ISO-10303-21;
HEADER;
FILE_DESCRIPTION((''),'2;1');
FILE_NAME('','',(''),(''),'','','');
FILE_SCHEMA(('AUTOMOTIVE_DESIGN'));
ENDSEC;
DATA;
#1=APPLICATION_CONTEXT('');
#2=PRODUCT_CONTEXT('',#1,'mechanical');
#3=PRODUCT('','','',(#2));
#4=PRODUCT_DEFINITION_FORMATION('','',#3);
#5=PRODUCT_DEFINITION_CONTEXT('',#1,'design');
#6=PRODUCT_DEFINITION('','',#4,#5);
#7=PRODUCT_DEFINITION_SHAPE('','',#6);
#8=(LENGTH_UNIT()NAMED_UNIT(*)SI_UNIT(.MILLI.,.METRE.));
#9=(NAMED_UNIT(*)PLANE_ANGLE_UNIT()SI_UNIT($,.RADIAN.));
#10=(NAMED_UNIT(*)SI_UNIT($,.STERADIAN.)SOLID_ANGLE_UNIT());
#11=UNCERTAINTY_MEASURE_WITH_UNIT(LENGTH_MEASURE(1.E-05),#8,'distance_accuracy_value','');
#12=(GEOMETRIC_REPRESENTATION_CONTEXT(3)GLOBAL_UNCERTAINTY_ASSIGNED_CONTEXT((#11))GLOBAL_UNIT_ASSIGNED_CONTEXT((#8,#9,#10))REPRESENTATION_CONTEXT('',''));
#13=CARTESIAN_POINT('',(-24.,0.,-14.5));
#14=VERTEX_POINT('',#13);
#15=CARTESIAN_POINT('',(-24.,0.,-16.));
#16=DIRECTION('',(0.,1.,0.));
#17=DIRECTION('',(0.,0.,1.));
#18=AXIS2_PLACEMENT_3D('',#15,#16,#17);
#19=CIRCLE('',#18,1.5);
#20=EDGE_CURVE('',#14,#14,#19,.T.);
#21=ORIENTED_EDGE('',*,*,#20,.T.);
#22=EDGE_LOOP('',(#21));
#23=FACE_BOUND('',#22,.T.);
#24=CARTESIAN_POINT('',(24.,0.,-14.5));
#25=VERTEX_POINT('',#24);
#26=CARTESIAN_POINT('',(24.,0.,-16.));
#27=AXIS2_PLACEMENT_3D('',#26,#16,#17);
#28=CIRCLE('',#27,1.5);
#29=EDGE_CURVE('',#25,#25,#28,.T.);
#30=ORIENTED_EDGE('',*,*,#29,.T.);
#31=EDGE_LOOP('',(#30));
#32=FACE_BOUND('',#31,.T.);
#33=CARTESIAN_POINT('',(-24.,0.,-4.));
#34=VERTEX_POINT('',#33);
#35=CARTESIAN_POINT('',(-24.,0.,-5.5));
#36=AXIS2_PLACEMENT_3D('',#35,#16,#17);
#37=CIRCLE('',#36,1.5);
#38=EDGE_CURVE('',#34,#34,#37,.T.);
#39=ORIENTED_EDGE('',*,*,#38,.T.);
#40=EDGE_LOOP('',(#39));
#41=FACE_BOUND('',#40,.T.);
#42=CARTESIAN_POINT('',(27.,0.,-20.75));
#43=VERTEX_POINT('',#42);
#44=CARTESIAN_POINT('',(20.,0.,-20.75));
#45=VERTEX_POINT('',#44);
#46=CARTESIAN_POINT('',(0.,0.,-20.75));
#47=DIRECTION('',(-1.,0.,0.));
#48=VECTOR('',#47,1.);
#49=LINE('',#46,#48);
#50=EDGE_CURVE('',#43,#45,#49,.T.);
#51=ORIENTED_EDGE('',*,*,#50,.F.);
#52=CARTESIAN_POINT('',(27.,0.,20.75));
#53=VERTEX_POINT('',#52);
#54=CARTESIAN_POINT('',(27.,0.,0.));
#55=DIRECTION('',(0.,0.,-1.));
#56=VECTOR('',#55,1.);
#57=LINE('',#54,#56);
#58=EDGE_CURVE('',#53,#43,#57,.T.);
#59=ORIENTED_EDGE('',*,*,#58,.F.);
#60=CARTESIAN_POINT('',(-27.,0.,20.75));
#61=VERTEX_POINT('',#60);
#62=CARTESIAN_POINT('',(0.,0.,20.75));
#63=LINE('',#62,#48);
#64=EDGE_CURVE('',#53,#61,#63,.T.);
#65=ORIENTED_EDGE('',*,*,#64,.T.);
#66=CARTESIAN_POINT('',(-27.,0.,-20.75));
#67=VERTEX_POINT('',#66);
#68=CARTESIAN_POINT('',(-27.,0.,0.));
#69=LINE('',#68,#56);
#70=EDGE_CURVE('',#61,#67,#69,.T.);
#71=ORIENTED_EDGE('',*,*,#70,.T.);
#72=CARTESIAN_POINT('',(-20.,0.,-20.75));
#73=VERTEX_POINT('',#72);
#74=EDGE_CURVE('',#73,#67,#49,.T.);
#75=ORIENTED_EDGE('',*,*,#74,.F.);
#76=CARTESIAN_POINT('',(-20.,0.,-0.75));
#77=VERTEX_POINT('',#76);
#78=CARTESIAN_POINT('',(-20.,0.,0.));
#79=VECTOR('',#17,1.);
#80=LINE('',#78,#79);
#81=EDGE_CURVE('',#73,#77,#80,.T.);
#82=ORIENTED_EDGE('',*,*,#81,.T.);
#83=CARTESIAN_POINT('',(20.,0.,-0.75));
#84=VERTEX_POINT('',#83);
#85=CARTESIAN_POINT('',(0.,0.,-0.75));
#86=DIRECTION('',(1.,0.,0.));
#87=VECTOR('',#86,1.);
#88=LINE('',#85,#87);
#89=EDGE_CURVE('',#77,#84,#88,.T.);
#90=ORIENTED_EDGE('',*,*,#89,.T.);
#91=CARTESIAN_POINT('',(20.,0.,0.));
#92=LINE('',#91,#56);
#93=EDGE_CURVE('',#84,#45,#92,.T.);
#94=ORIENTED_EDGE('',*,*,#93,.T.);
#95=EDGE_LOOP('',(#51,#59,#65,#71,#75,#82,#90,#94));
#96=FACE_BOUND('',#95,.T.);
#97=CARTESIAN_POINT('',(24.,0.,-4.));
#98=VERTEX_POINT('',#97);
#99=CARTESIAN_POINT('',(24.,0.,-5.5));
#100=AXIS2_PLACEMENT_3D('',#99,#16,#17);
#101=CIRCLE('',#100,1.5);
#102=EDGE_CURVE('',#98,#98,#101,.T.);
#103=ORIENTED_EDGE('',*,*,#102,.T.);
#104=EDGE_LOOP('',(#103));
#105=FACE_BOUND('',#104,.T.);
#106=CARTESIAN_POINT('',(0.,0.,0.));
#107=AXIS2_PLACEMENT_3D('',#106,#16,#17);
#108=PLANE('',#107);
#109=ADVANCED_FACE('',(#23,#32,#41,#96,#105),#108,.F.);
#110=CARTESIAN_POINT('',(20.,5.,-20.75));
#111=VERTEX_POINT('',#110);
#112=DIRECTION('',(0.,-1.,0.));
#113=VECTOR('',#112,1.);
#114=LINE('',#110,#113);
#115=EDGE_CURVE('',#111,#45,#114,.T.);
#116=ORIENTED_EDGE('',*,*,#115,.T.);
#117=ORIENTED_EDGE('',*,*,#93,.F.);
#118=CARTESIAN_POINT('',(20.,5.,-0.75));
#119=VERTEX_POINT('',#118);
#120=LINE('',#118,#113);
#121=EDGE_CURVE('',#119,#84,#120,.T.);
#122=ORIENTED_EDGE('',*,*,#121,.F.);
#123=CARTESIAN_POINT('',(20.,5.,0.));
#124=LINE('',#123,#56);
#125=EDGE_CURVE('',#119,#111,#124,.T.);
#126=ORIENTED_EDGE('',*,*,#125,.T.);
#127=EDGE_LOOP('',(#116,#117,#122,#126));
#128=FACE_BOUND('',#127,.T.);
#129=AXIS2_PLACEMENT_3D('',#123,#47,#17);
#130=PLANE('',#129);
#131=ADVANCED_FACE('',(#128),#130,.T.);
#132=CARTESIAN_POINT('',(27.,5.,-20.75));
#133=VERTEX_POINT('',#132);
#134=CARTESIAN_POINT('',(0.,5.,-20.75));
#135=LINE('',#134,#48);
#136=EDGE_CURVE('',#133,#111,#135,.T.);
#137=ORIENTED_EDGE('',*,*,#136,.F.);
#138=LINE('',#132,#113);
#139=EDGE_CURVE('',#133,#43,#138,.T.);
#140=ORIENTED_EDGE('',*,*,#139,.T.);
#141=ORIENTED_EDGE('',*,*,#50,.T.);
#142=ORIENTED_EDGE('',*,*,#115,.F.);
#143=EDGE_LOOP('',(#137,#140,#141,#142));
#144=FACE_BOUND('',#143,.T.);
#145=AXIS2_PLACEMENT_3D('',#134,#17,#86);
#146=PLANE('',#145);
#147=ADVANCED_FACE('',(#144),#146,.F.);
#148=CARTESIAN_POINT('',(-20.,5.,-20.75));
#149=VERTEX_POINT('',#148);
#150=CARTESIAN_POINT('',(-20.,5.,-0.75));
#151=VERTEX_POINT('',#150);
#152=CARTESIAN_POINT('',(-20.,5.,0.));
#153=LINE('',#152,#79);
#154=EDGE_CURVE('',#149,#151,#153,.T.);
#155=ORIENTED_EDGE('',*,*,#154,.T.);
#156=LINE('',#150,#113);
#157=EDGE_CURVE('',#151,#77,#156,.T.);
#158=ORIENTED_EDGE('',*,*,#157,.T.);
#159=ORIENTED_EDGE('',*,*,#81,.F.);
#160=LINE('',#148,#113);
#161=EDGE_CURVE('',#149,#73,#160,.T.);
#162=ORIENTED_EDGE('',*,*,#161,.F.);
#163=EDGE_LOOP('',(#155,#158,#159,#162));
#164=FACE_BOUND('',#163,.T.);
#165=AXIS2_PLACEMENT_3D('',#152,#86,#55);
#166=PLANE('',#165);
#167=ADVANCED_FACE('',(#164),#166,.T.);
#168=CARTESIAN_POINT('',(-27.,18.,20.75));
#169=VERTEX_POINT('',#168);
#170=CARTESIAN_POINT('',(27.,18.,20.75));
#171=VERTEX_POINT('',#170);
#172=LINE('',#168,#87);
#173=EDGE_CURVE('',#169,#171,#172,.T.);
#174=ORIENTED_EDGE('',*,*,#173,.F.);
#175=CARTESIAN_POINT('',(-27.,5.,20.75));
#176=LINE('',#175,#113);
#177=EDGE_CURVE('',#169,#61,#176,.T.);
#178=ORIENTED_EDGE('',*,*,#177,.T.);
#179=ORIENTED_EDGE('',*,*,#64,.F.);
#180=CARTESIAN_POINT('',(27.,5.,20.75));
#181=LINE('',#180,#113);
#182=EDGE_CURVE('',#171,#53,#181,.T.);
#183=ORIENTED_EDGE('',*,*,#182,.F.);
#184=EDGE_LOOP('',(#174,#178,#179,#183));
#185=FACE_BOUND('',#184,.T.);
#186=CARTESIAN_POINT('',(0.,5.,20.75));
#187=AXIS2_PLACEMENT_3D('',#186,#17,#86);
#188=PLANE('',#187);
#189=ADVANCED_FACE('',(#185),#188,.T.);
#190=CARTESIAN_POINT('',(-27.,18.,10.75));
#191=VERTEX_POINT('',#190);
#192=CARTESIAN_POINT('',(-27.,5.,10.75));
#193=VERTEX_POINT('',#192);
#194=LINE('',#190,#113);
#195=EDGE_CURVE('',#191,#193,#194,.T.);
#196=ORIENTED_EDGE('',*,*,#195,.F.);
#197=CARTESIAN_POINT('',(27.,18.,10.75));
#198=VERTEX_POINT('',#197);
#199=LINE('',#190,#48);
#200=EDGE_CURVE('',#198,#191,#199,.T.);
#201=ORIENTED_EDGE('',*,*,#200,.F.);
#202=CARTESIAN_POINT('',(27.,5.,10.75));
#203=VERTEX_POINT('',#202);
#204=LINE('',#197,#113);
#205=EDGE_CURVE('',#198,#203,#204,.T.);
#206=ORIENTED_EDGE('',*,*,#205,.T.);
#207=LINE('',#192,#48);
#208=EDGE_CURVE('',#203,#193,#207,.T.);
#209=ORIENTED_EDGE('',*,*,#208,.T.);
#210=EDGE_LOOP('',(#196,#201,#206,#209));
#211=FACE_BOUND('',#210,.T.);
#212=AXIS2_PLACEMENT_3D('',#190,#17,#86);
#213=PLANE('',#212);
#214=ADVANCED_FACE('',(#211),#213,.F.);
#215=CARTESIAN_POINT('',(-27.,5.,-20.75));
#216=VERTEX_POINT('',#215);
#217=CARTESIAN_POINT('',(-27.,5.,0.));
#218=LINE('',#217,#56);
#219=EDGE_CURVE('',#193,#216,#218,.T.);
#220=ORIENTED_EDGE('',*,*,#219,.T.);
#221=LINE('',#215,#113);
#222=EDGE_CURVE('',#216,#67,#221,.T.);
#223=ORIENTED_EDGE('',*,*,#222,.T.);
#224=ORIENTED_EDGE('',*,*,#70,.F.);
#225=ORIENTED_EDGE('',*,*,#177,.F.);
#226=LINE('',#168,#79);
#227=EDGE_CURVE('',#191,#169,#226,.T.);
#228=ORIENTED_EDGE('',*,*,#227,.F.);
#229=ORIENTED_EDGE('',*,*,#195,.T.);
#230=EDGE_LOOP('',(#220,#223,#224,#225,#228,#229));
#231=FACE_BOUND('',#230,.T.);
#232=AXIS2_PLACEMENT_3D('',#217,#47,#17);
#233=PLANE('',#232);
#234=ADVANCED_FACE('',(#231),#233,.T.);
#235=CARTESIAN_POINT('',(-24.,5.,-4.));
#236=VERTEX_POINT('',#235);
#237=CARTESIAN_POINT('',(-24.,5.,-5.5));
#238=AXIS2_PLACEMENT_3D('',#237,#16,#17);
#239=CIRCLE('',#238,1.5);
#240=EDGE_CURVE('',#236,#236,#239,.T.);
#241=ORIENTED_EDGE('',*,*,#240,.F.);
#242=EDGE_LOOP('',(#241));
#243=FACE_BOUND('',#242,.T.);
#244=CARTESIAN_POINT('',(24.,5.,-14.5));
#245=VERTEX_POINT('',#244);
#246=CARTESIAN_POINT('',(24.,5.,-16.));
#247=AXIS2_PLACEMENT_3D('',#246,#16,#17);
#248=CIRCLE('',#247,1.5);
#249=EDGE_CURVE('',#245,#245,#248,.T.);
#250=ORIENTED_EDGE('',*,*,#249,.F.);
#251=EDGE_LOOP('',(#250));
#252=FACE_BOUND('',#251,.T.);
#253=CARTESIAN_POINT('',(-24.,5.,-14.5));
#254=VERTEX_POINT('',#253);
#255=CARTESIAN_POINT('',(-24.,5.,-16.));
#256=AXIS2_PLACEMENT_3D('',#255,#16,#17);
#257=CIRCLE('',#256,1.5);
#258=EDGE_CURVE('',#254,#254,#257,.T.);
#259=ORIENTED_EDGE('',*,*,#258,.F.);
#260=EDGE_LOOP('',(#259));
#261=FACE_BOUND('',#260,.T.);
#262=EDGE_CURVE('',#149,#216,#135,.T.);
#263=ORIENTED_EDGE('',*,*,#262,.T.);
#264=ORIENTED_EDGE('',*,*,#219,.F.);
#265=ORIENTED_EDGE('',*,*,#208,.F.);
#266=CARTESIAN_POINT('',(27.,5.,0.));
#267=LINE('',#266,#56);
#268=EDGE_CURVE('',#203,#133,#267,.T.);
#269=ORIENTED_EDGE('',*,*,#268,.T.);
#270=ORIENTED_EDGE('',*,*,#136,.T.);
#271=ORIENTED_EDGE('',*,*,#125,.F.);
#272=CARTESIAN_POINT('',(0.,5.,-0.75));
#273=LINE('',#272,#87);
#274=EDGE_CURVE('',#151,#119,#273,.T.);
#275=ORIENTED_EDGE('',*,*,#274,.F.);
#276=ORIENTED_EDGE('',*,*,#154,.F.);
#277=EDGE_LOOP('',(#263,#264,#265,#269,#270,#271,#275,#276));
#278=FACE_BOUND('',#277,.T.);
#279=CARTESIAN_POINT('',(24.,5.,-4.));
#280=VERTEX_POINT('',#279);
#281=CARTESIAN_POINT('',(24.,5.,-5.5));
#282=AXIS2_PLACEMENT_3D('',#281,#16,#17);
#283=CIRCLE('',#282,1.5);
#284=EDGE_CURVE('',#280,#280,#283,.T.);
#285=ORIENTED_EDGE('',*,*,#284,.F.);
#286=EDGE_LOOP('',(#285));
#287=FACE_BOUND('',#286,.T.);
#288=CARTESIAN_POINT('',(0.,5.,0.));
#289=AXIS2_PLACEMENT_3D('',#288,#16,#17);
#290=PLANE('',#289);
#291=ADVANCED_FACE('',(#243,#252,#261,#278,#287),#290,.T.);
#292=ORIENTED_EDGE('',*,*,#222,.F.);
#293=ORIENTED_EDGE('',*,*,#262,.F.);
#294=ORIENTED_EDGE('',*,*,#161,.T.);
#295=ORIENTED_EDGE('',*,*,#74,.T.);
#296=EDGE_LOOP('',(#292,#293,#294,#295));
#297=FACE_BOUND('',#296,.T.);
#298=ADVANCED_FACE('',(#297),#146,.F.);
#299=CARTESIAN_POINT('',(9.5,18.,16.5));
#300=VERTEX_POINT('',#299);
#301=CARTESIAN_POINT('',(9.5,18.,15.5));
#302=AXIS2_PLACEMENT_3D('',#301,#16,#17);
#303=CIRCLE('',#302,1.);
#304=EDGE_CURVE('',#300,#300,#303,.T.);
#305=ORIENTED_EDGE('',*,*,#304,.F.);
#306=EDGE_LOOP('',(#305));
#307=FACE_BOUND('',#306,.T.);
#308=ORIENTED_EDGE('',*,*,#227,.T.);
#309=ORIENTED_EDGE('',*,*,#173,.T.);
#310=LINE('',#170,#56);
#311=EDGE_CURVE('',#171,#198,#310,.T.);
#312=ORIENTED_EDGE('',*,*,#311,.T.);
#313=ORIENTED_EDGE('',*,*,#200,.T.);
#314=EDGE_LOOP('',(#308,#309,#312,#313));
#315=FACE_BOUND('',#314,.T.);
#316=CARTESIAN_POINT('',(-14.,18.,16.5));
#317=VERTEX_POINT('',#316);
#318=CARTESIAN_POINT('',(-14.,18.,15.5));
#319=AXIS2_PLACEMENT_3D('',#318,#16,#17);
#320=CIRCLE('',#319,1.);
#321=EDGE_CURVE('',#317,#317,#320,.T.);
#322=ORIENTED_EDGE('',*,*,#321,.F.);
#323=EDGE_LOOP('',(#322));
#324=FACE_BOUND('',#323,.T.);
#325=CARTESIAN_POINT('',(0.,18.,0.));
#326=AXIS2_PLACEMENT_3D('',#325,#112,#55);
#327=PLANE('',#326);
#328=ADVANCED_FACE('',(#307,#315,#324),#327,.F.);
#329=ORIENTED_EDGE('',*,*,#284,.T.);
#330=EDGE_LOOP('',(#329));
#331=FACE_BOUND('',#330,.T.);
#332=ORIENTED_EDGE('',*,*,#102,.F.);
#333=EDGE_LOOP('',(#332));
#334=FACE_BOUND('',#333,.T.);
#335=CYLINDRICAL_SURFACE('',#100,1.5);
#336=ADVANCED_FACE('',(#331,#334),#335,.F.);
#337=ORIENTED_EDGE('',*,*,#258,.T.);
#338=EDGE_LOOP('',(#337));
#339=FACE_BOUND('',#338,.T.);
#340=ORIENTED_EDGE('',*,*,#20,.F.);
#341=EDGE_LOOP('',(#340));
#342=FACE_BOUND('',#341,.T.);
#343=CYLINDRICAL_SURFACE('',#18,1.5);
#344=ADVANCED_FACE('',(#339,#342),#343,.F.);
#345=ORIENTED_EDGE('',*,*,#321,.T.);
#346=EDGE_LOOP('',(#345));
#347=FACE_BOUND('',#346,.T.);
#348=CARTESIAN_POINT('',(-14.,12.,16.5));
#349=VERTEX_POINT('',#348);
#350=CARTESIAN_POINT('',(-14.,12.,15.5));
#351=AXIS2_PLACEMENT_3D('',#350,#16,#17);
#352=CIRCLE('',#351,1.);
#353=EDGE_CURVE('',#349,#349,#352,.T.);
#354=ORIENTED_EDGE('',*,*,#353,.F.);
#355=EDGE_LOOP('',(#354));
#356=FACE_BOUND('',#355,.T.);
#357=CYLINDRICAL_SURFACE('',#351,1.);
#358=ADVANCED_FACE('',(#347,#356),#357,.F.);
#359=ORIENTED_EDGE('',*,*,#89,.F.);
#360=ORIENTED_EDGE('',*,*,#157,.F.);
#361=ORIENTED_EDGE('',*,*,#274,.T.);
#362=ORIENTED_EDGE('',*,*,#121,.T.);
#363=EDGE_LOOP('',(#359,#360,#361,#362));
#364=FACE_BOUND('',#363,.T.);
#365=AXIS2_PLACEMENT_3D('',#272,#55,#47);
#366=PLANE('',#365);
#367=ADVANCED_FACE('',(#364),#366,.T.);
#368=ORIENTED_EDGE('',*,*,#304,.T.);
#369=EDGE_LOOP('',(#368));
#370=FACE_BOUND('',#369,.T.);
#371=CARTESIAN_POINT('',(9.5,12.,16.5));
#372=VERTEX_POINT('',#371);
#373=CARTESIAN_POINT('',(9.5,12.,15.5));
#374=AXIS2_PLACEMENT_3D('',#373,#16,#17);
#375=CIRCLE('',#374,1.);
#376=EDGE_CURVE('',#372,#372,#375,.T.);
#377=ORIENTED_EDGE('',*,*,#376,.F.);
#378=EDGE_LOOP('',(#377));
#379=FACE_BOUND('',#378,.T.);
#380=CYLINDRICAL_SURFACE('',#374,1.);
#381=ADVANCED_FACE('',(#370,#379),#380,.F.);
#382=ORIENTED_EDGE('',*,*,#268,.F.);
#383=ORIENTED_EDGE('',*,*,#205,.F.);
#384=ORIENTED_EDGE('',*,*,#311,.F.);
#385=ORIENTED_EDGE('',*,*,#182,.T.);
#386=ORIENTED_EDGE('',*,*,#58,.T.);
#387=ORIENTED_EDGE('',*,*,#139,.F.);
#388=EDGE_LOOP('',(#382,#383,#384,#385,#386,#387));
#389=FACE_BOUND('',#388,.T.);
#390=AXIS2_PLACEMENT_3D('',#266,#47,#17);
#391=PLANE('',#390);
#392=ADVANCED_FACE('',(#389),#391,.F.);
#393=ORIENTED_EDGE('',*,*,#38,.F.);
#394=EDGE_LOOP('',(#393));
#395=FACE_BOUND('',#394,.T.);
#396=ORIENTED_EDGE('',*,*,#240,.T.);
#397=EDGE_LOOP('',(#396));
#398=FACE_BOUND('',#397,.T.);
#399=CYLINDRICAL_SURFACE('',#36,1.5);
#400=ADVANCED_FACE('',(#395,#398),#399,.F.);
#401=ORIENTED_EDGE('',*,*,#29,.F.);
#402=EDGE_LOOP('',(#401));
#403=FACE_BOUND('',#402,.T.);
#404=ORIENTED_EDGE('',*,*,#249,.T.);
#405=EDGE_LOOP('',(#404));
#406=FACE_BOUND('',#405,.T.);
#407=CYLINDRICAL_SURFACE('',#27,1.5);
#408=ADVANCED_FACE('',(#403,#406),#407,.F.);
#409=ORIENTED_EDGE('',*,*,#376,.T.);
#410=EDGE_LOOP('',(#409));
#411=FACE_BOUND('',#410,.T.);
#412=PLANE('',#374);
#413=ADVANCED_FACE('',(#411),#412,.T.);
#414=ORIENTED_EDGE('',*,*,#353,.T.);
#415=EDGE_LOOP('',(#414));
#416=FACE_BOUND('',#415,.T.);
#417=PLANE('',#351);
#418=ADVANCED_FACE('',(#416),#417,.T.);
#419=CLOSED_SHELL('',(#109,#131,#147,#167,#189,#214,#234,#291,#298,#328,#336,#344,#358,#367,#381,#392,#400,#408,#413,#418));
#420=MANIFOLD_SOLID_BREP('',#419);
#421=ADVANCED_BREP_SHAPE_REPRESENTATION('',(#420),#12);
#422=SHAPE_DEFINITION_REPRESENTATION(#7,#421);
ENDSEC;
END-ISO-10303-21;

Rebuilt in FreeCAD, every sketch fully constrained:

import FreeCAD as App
import Part
import Sketcher


def add_polygon(sketch, points):
    """Adds a closed chain of lines whose ends are joined by coincident constraints."""
    first, n = sketch.GeometryCount, len(points)
    for a, b in zip(points, points[1:] + points[:1]):
        sketch.addGeometry(Part.LineSegment(App.Vector(*a, 0), App.Vector(*b, 0)), False)
    for i in range(n):
        sketch.addConstraint(Sketcher.Constraint("Coincident", first + i, 2, first + (i + 1) % n, 1))

doc = App.newDocument("Part")
body = doc.addObject("PartDesign::Body", "Body")

# Sketch on XZ plane
sketch1 = body.newObject("Sketcher::SketchObject", "Sketch")
sketch1.AttachmentSupport = (doc.getObject("XZ_Plane"), [""])
sketch1.MapMode = "FlatFace"
add_polygon(sketch1, [(-20, -1), (-20, -21), (-27, -21), (-27, 21), (27, 21), (27, -21), (20, -21), (20, -1)])  # lines 0-7
sketch1.addConstraint(Sketcher.Constraint("Vertical", 0))
sketch1.addConstraint(Sketcher.Constraint("Horizontal", 1))
sketch1.addConstraint(Sketcher.Constraint("Vertical", 2))
sketch1.addConstraint(Sketcher.Constraint("Horizontal", 3))
sketch1.addConstraint(Sketcher.Constraint("Vertical", 4))
sketch1.addConstraint(Sketcher.Constraint("Horizontal", 5))
sketch1.addConstraint(Sketcher.Constraint("Vertical", 6))
sketch1.addConstraint(Sketcher.Constraint("Horizontal", 7))
sketch1.addConstraint(Sketcher.Constraint("Symmetric", 1, 2, 3, 2, -1, 1))
sketch1.addConstraint(Sketcher.Constraint("Symmetric", 0, 2, 5, 2, -2))
sketch1.addConstraint(Sketcher.Constraint("DistanceX", 1, 2, 1, 1, 7.0))
sketch1.addConstraint(Sketcher.Constraint("DistanceX", 3, 1, 3, 2, 54.0))
sketch1.addConstraint(Sketcher.Constraint("DistanceY", 0, 2, 0, 1, 20.0))
sketch1.addConstraint(Sketcher.Constraint("DistanceY", 2, 1, 2, 2, 41.5))
pad1 = body.newObject("PartDesign::Pad", "Pad")
pad1.Profile = sketch1
pad1.Length = 5
pad1.Reversed = True

# Sketch on XZ plane
sketch2 = body.newObject("Sketcher::SketchObject", "Sketch001")
sketch2.AttachmentSupport = (doc.getObject("XZ_Plane"), [""])
sketch2.MapMode = "FlatFace"
sketch2.AttachmentOffset = App.Placement(App.Vector(0, 0, -5), App.Rotation())
sketch2.addGeometry(Part.Circle(App.Vector(-24, -16, 0), App.Vector(0, 0, 1), 1.5), False)
sketch2.addGeometry(Part.Circle(App.Vector(-24, -5.5, 0), App.Vector(0, 0, 1), 1.5), False)
sketch2.addGeometry(Part.Circle(App.Vector(24, -16, 0), App.Vector(0, 0, 1), 1.5), False)
sketch2.addGeometry(Part.Circle(App.Vector(24, -5.5, 0), App.Vector(0, 0, 1), 1.5), False)
sketch2.addConstraint(Sketcher.Constraint("Equal", 0, 1))
sketch2.addConstraint(Sketcher.Constraint("Equal", 1, 2))
sketch2.addConstraint(Sketcher.Constraint("Equal", 2, 3))
sketch2.addConstraint(Sketcher.Constraint("Symmetric", 0, 3, 2, 3, -2))
sketch2.addConstraint(Sketcher.Constraint("Symmetric", 1, 3, 3, 3, -2))
sketch2.addConstraint(Sketcher.Constraint("Vertical", 0, 3, 1, 3))
sketch2.addConstraint(Sketcher.Constraint("Diameter", 0, 3.0))
sketch2.addConstraint(Sketcher.Constraint("DistanceX", 0, 3, -1, 1, 24.0))
sketch2.addConstraint(Sketcher.Constraint("DistanceY", 0, 3, -1, 1, 16.0))
sketch2.addConstraint(Sketcher.Constraint("DistanceY", 1, 3, -1, 1, 5.5))
pocket1 = body.newObject("PartDesign::Pocket", "Pocket")
pocket1.Profile = sketch2
pocket1.Type = "ThroughAll"
pocket1.Reversed = True

# Sketch on XZ plane
sketch3 = body.newObject("Sketcher::SketchObject", "Sketch002")
sketch3.AttachmentSupport = (doc.getObject("XZ_Plane"), [""])
sketch3.MapMode = "FlatFace"
sketch3.AttachmentOffset = App.Placement(App.Vector(0, 0, -5), App.Rotation())
add_polygon(sketch3, [(-27, 11), (-27, 21), (27, 21), (27, 11)])  # lines 0-3
sketch3.addConstraint(Sketcher.Constraint("Vertical", 0))
sketch3.addConstraint(Sketcher.Constraint("Horizontal", 1))
sketch3.addConstraint(Sketcher.Constraint("Vertical", 2))
sketch3.addConstraint(Sketcher.Constraint("Horizontal", 3))
sketch3.addConstraint(Sketcher.Constraint("DistanceX", 1, 1, 1, 2, 54.0))
sketch3.addConstraint(Sketcher.Constraint("DistanceY", 0, 1, 0, 2, 10.0))
sketch3.addConstraint(Sketcher.Constraint("DistanceX", 0, 2, -1, 1, 27.0))
sketch3.addConstraint(Sketcher.Constraint("DistanceY", -1, 1, 0, 2, 20.75))
pad2 = body.newObject("PartDesign::Pad", "Pad001")
pad2.Profile = sketch3
pad2.Length = 13
pad2.Reversed = True

# Sketch on XZ plane
sketch4 = body.newObject("Sketcher::SketchObject", "Sketch003")
sketch4.AttachmentSupport = (doc.getObject("XZ_Plane"), [""])
sketch4.MapMode = "FlatFace"
sketch4.AttachmentOffset = App.Placement(App.Vector(0, 0, -18), App.Rotation())
sketch4.addGeometry(Part.Circle(App.Vector(-14, 15.5, 0), App.Vector(0, 0, 1), 1), False)
sketch4.addGeometry(Part.Circle(App.Vector(9.5, 15.5, 0), App.Vector(0, 0, 1), 1), False)
sketch4.addConstraint(Sketcher.Constraint("Equal", 0, 1))
sketch4.addConstraint(Sketcher.Constraint("Horizontal", 0, 3, 1, 3))
sketch4.addConstraint(Sketcher.Constraint("Diameter", 0, 2.0))
sketch4.addConstraint(Sketcher.Constraint("DistanceX", 0, 3, -1, 1, 14.0))
sketch4.addConstraint(Sketcher.Constraint("DistanceY", -1, 1, 0, 3, 15.5))
sketch4.addConstraint(Sketcher.Constraint("DistanceX", -1, 1, 1, 3, 9.5))
pocket2 = body.newObject("PartDesign::Pocket", "Pocket001")
pocket2.Profile = sketch4
pocket2.Length = 6
pocket2.Reversed = True

doc.recompute()
